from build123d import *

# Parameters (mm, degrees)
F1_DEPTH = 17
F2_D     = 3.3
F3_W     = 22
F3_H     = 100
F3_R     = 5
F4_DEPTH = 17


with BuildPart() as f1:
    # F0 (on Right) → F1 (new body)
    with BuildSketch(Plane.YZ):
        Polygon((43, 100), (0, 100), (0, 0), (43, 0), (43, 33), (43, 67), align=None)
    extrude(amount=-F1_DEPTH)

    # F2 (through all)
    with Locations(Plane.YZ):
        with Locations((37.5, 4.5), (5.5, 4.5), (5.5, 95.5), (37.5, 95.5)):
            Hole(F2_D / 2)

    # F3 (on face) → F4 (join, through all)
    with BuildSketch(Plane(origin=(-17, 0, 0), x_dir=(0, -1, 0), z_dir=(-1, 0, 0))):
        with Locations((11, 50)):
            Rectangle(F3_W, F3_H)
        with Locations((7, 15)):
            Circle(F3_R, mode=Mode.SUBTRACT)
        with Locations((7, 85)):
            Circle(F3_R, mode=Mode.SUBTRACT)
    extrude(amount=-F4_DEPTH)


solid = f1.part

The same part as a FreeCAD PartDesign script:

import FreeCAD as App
import Part
import Sketcher
Q = App.Units.Quantity


def add_polygon(sketch, points):
    """Adds a closed chain of lines whose ends are joined by coincident constraints."""
    first, n = sketch.GeometryCount, len(points)
    for a, b in zip(points, points[1:] + points[:1]):
        sketch.addGeometry(Part.LineSegment(App.Vector(*a, 0), App.Vector(*b, 0)), False)
    for i in range(n):
        sketch.addConstraint(Sketcher.Constraint("Coincident", first + i, 2, first + (i + 1) % n, 1))

doc = App.newDocument("Part")
params = doc.addObject("Spreadsheet::Sheet", "Params")
for row, (alias, value) in enumerate([
    ("sketch1_width", "43 mm"),
    ("sketch1_height", "100 mm"),
    ("pad1_length", "17 mm"),
    ("sketch2_diameter", "3.3 mm"),
    ("hole_diameter", "3.3 mm"),
    ("sketch3_diameter", "10 mm"),
    ("sketch3_width", "22 mm"),
    ("sketch3_height", "100 mm"),
    ("pad2_length", "17 mm"),
], start=1):
    params.set(f"A{row}", alias)
    params.set(f"B{row}", "=" + value)
    params.setAlias(f"B{row}", alias)

body = doc.addObject("PartDesign::Body", "Body")

sketch1 = doc.addObject("Sketcher::SketchObject", "Sketch")
body.addObject(sketch1)
sketch1.AttachmentSupport = (doc.YZ_Plane, [""])
sketch1.MapMode = "FlatFace"
add_polygon(sketch1, [(43, 100), (0, 100), (0, 0), (43, 0)])
sketch1.addConstraint([
    Sketcher.Constraint("Horizontal", 0),
    Sketcher.Constraint("Vertical", 1),
    Sketcher.Constraint("Horizontal", 2),
    Sketcher.Constraint("Vertical", 3),
    Sketcher.Constraint("Coincident", 1, 2, -1, 1),
    Sketcher.Constraint("DistanceX", 0, 2, 0, 1, Q("43 mm")),
    Sketcher.Constraint("DistanceY", 1, 2, 1, 1, Q("100 mm")),
])
sketch1.setExpression("Constraints[9]", "Params.sketch1_width")
sketch1.setExpression("Constraints[10]", "Params.sketch1_height")
pad1 = doc.addObject("PartDesign::Pad", "Pad")
body.addObject(pad1)
pad1.Profile = sketch1
pad1.setExpression("Length", "Params.pad1_length")
pad1.Reversed = True

sketch2 = doc.addObject("Sketcher::SketchObject", "Sketch001")
body.addObject(sketch2)
sketch2.AttachmentSupport = (doc.YZ_Plane, [""])
sketch2.MapMode = "FlatFace"
sketch2.addGeometry([
    Part.Circle(App.Vector(37.5, 4.5, 0), App.Vector(0, 0, 1), 1.6),
    Part.Circle(App.Vector(5.5, 4.5, 0), App.Vector(0, 0, 1), 1.6),
    Part.Circle(App.Vector(5.5, 95.5, 0), App.Vector(0, 0, 1), 1.6),
    Part.Circle(App.Vector(37.5, 95.5, 0), App.Vector(0, 0, 1), 1.6),
], False)
sketch2.addConstraint([
    Sketcher.Constraint("Equal", 0, 1),
    Sketcher.Constraint("Equal", 1, 2),
    Sketcher.Constraint("Equal", 2, 3),
    Sketcher.Constraint("Horizontal", 0, 3, 1, 3),
    Sketcher.Constraint("Horizontal", 2, 3, 3, 3),
    Sketcher.Constraint("Vertical", 1, 3, 2, 3),
    Sketcher.Constraint("Vertical", 0, 3, 3, 3),
    Sketcher.Constraint("Diameter", 0, Q("3.3 mm")),
    Sketcher.Constraint("DistanceX", 1, 3, 0, 3, Q("32 mm")),
    Sketcher.Constraint("DistanceY", 1, 3, 2, 3, Q("91 mm")),
    Sketcher.Constraint("DistanceX", -1, 1, 0, 3, Q("37.5 mm")),
    Sketcher.Constraint("DistanceY", -1, 1, 0, 3, Q("4.5 mm")),
])
sketch2.setExpression("Constraints[7]", "Params.sketch2_diameter")
doc.recompute()
hole = doc.addObject("PartDesign::Hole", "Hole")
body.addObject(hole)
hole.Profile = sketch2
hole.ThreadType = "None"
hole.setExpression("Diameter", "Params.hole_diameter")
hole.DepthType = "ThroughAll"

sketch3 = doc.addObject("Sketcher::SketchObject", "Sketch002")
body.addObject(sketch3)
sketch3.AttachmentSupport = (doc.YZ_Plane, [""])
sketch3.MapMode = "FlatFace"
sketch3.AttachmentOffset = App.Placement(App.Vector(0, 0, -17), App.Rotation())
add_polygon(sketch3, [(0, 100), (0, 0), (-22, 0), (-22, 100)])
sketch3.addGeometry(Part.Circle(App.Vector(-7, 15, 0), App.Vector(0, 0, 1), 5), False)
sketch3.addGeometry(Part.Circle(App.Vector(-7, 85, 0), App.Vector(0, 0, 1), 5), False)
sketch3.addConstraint([
    Sketcher.Constraint("Vertical", 0),
    Sketcher.Constraint("Horizontal", 1),
    Sketcher.Constraint("Vertical", 2),
    Sketcher.Constraint("Horizontal", 3),
    Sketcher.Constraint("Coincident", 0, 2, -1, 1),
    Sketcher.Constraint("Equal", 4, 5),
    Sketcher.Constraint("Vertical", 4, 3, 5, 3),
    Sketcher.Constraint("Diameter", 4, Q("10 mm")),
    Sketcher.Constraint("DistanceX", 1, 2, 1, 1, Q("22 mm")),
    Sketcher.Constraint("DistanceY", 0, 2, 0, 1, Q("100 mm")),
    Sketcher.Constraint("DistanceX", 4, 3, -1, 1, Q("7 mm")),
    Sketcher.Constraint("DistanceY", -1, 1, 4, 3, Q("15 mm")),
    Sketcher.Constraint("DistanceY", -1, 1, 5, 3, Q("85 mm")),
])
sketch3.setExpression("Constraints[11]", "Params.sketch3_diameter")
sketch3.setExpression("Constraints[12]", "Params.sketch3_width")
sketch3.setExpression("Constraints[13]", "Params.sketch3_height")
pad2 = doc.addObject("PartDesign::Pad", "Pad001")
body.addObject(pad2)
pad2.Profile = sketch3
pad2.setExpression("Length", "Params.pad2_length")

doc.recompute()
